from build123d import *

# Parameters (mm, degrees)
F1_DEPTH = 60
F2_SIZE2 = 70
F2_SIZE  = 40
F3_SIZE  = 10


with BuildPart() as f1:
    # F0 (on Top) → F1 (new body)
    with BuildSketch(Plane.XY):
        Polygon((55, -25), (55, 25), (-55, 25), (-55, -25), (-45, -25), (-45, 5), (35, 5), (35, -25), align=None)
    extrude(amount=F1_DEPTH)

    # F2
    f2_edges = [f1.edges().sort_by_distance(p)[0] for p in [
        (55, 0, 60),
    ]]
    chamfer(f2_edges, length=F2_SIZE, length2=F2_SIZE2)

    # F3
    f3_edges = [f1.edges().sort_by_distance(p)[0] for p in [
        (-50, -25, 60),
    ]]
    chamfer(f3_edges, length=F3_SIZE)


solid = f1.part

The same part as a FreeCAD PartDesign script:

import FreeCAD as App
import Part
import Sketcher

V = App.Vector


def edges_at(feature, points):
    """Names of the edges that pass closest to the given points."""
    edges = feature.Shape.Edges
    near = lambda p: min(range(len(edges)), key=lambda i: edges[i].distToShape(Part.Vertex(*p))[0])
    return sorted({f"Edge{near(p) + 1}" for p in points})


def add_polygon(sketch, points):
    """Adds a closed chain of lines whose ends are joined by coincident constraints."""
    first, n = sketch.GeometryCount, len(points)
    for a, b in zip(points, points[1:] + points[:1]):
        sketch.addGeometry(Part.LineSegment(App.Vector(*a, 0), App.Vector(*b, 0)), False)
    for i in range(n):
        sketch.addConstraint(Sketcher.Constraint("Coincident", first + i, 2, first + (i + 1) % n, 1))

doc = App.newDocument("Part")
params = doc.addObject("Spreadsheet::Sheet", "Params")
for row, (alias, value) in enumerate([
    ("sketch1_width", "110 mm"),
    ("sketch1_width2", "10 mm"),
    ("sketch1_width3", "80 mm"),
    ("sketch1_height", "50 mm"),
    ("sketch1_height2", "30 mm"),
    ("pad1_length", "60 mm"),
    ("chamfer_size", "40 mm"),
    ("chamfer_size2", "70 mm"),
    ("chamfer2_size", "10 mm"),
], start=1):
    params.set(f"A{row}", alias)
    params.set(f"B{row}", "=" + value)
    params.setAlias(f"B{row}", alias)

body = doc.addObject("PartDesign::Body", "Body")

# Sketch on XY plane
sketch1 = doc.addObject("Sketcher::SketchObject", "Sketch")
body.addObject(sketch1)
sketch1.AttachmentSupport = (doc.XY_Plane, [""])
sketch1.MapMode = "FlatFace"
add_polygon(sketch1, [(55, -25), (55, 25), (-55, 25), (-55, -25), (-45, -25), (-45, 5), (35, 5), (35, -25)])  # lines 0-7
sketch1.addConstraint(Sketcher.Constraint("Vertical", 0))
sketch1.addConstraint(Sketcher.Constraint("Horizontal", 1))
sketch1.addConstraint(Sketcher.Constraint("Vertical", 2))
sketch1.addConstraint(Sketcher.Constraint("Horizontal", 3))
sketch1.addConstraint(Sketcher.Constraint("Vertical", 4))
sketch1.addConstraint(Sketcher.Constraint("Horizontal", 5))
sketch1.addConstraint(Sketcher.Constraint("Vertical", 6))
sketch1.addConstraint(Sketcher.Constraint("Horizontal", 7))
sketch1.addConstraint(Sketcher.Constraint("Symmetric", 0, 2, 2, 2, -1, 1))
sketch1.addConstraint(Sketcher.Constraint("Horizontal", 3, 2, 6, 2))
sketch1.addConstraint(Sketcher.Constraint("DistanceX", 1, 2, 1, 1, 110.0))
sketch1.addConstraint(Sketcher.Constraint("DistanceX", 3, 1, 3, 2, 10.0))
sketch1.addConstraint(Sketcher.Constraint("DistanceX", 5, 1, 5, 2, 80.0))
sketch1.addConstraint(Sketcher.Constraint("DistanceY", 0, 1, 0, 2, 50.0))
sketch1.addConstraint(Sketcher.Constraint("DistanceY", 4, 1, 4, 2, 30.0))
sketch1.setExpression("Constraints[18]", "Params.sketch1_width")
sketch1.setExpression("Constraints[19]", "Params.sketch1_width2")
sketch1.setExpression("Constraints[20]", "Params.sketch1_width3")
sketch1.setExpression("Constraints[21]", "Params.sketch1_height")
sketch1.setExpression("Constraints[22]", "Params.sketch1_height2")
pad1 = doc.addObject("PartDesign::Pad", "Pad")
body.addObject(pad1)
pad1.Profile = sketch1
pad1.setExpression("Length", "Params.pad1_length")
doc.recompute()

chamfer = doc.addObject("PartDesign::Chamfer", "Chamfer")
body.addObject(chamfer)
chamfer.Base = (pad1, edges_at(pad1, [(55, 0, 60)]))
chamfer.ChamferType = "Two distances"
chamfer.setExpression("Size", "Params.chamfer_size")
chamfer.setExpression("Size2", "Params.chamfer_size2")
doc.recompute()

chamfer2 = doc.addObject("PartDesign::Chamfer", "Chamfer001")
body.addObject(chamfer2)
chamfer2.Base = (chamfer, edges_at(chamfer, [(-50, -25, 60)]))
chamfer2.setExpression("Size", "Params.chamfer2_size")

doc.recompute()
